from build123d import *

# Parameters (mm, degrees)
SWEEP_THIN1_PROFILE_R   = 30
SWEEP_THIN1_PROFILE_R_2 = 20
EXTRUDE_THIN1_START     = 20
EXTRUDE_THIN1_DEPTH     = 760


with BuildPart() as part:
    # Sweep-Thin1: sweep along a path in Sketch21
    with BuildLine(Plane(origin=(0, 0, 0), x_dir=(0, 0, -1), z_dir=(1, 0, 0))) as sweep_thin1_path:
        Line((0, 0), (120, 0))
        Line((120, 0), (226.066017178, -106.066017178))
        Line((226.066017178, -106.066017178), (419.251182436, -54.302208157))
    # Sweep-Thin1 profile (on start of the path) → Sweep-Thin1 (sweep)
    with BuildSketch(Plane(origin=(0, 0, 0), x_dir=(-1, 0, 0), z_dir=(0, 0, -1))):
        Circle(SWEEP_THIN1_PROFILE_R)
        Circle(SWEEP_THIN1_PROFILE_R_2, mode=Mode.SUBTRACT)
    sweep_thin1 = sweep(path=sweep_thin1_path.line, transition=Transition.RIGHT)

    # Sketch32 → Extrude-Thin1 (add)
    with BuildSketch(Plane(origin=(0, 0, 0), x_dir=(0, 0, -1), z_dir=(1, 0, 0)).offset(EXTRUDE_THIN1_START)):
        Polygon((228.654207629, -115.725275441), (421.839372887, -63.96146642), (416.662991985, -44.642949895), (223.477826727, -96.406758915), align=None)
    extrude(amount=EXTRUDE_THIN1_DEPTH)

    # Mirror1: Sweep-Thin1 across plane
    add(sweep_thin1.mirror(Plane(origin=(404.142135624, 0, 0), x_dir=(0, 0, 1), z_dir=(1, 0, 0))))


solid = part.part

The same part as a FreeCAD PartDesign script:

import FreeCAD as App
import Part
import Sketcher
Q = App.Units.Quantity


def add_polygon(sketch, points):
    """Adds a closed chain of lines whose ends are joined by coincident constraints."""
    first, n = sketch.GeometryCount, len(points)
    for a, b in zip(points, points[1:] + points[:1]):
        sketch.addGeometry(Part.LineSegment(App.Vector(*a, 0), App.Vector(*b, 0)), False)
    for i in range(n):
        sketch.addConstraint(Sketcher.Constraint("Coincident", first + i, 2, first + (i + 1) % n, 1))

doc = App.newDocument("Part")
params = doc.addObject("Spreadsheet::Sheet", "Params")
for row, (alias, value) in enumerate([
    ("sketch1_diameter", "60 mm"),
    ("sketch1_diameter2", "40 mm"),
    ("sketch2_height", "120 mm"),
    ("sketch2_length", "150 mm"),
    ("sketch2_length2", "200 mm"),
    ("sketch3_length", "200 mm"),
    ("sketch3_length2", "20 mm"),
    ("pad1_length", "760 mm"),
], start=1):
    params.set(f"A{row}", alias)
    params.set(f"B{row}", "=" + value)
    params.setAlias(f"B{row}", alias)

body = doc.addObject("PartDesign::Body", "Body")

sketch1 = doc.addObject("Sketcher::SketchObject", "Sketch")
body.addObject(sketch1)
sketch1.AttachmentSupport = (doc.XY_Plane, [""])
sketch1.MapMode = "FlatFace"
sketch1.addGeometry([
    Part.Circle(App.Vector(0, 0, 0), App.Vector(0, 0, 1), 30),
    Part.Circle(App.Vector(0, 0, 0), App.Vector(0, 0, 1), 20),
], False)
sketch1.addConstraint([
    Sketcher.Constraint("Coincident", 0, 3, -1, 1),
    Sketcher.Constraint("Coincident", 1, 3, -1, 1),
    Sketcher.Constraint("Diameter", 0, Q("60 mm")),
    Sketcher.Constraint("Diameter", 1, Q("40 mm")),
])
sketch1.setExpression("Constraints[2]", "Params.sketch1_diameter")
sketch1.setExpression("Constraints[3]", "Params.sketch1_diameter2")

sketch2 = doc.addObject("Sketcher::SketchObject", "Sketch001")
body.addObject(sketch2)
sketch2.AttachmentSupport = (doc.YZ_Plane, [""])
sketch2.MapMode = "FlatFace"
sketch2.addGeometry([
    Part.LineSegment(App.Vector(0, 0, 0), App.Vector(0, -120, 0)),
    Part.LineSegment(App.Vector(0, -120, 0), App.Vector(-106, -226, 0)),
    Part.LineSegment(App.Vector(-106, -226, 0), App.Vector(-54, -419, 0)),
], False)
sketch2.addConstraint([
    Sketcher.Constraint("Coincident", 0, 2, 1, 1),
    Sketcher.Constraint("Coincident", 1, 2, 2, 1),
    Sketcher.Constraint("Vertical", 0),
    Sketcher.Constraint("Coincident", 0, 1, -1, 1),
    Sketcher.Constraint("DistanceY", 0, 2, 0, 1, Q("120 mm")),
    Sketcher.Constraint("Angle", 1, Q("-135 deg")),
    Sketcher.Constraint("Angle", 2, Q("-75 deg")),
    Sketcher.Constraint("Distance", 1, Q("150 mm")),
    Sketcher.Constraint("Distance", 2, Q("200 mm")),
])
sketch2.setExpression("Constraints[4]", "Params.sketch2_height")
sketch2.setExpression("Constraints[7]", "Params.sketch2_length")
sketch2.setExpression("Constraints[8]", "Params.sketch2_length2")
doc.recompute()

additivepipe = doc.addObject("PartDesign::AdditivePipe", "AdditivePipe")
body.addObject(additivepipe)
additivepipe.Profile = sketch1
additivepipe.Spine = (sketch2, ["Edge1", "Edge2", "Edge3"])
additivepipe.Transition = "Right corner"

sketch3 = doc.addObject("Sketcher::SketchObject", "Sketch002")
body.addObject(sketch3)
sketch3.AttachmentSupport = (doc.YZ_Plane, [""])
sketch3.MapMode = "FlatFace"
sketch3.AttachmentOffset = App.Placement(App.Vector(0, 0, 20), App.Rotation())
add_polygon(sketch3, [(-116, -229), (-64, -422), (-45, -417), (-96, -223)])
sketch3.addConstraint([
    Sketcher.Constraint("Perpendicular", 0, 1),
    Sketcher.Constraint("Perpendicular", 1, 2),
    Sketcher.Constraint("Perpendicular", 2, 3),
    Sketcher.Constraint("Angle", 0, Q("-75 deg")),
    Sketcher.Constraint("Distance", 0, Q("200 mm")),
    Sketcher.Constraint("Distance", 1, Q("20 mm")),
    Sketcher.Constraint("DistanceX", 1, 2, -1, 1, Q("44.64295 mm")),
    Sketcher.Constraint("DistanceY", 1, 2, -1, 1, Q("416.662992 mm")),
])
sketch3.setExpression("Constraints[8]", "Params.sketch3_length")
sketch3.setExpression("Constraints[9]", "Params.sketch3_length2")
pad1 = doc.addObject("PartDesign::Pad", "Pad")
body.addObject(pad1)
pad1.Profile = sketch3
pad1.setExpression("Length", "Params.pad1_length")
doc.recompute()

datumplane = doc.addObject("PartDesign::Plane", "DatumPlane")
body.addObject(datumplane)
datumplane.AttachmentSupport = (doc.YZ_Plane, [""])
datumplane.MapMode = "FlatFace"
datumplane.AttachmentOffset = App.Placement(App.Vector(0, 0, 404.142136), App.Rotation())
mirrored = doc.addObject("PartDesign::Mirrored", "Mirrored")
body.addObject(mirrored)
mirrored.Originals = [additivepipe]
mirrored.MirrorPlane = (datumplane, [""])
body.Tip = mirrored

doc.recompute()
